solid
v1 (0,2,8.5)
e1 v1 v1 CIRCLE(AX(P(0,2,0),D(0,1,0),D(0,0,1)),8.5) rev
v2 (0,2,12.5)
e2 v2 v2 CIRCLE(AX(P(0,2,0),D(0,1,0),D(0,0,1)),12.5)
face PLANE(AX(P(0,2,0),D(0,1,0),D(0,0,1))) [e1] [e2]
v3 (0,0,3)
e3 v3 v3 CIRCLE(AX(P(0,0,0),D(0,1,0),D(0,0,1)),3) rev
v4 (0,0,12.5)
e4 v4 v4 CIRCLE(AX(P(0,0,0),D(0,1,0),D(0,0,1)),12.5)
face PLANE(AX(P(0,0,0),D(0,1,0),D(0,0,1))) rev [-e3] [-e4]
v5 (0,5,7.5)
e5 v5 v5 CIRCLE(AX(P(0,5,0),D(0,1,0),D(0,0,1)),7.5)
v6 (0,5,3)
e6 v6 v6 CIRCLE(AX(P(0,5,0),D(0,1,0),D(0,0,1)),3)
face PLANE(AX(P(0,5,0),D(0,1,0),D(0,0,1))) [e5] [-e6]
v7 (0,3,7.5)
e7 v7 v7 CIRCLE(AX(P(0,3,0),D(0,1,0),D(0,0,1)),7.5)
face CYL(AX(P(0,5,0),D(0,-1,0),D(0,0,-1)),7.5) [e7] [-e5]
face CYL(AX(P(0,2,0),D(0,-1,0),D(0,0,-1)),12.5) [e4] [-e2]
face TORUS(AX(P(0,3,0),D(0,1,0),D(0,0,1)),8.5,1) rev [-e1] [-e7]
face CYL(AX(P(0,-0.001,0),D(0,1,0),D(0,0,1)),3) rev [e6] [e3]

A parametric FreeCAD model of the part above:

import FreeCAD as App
import Part
import Sketcher
from FreeCAD import Vector
Q = App.Units.Quantity


def edges_at(feature, points):
    """Names of the edges that pass closest to the given points."""
    edges = feature.Shape.Edges
    near = lambda p: min(range(len(edges)), key=lambda i: edges[i].distToShape(Part.Vertex(*p))[0])
    return sorted({f"Edge{near(p) + 1}" for p in points})

doc = App.newDocument("Part")
body = doc.addObject("PartDesign::Body", "Body")

# Sketch on XZ plane
sketch1 = doc.addObject("Sketcher::SketchObject", "Sketch")
body.addObject(sketch1)
sketch1.AttachmentSupport = (doc.XZ_Plane, [""])
sketch1.MapMode = "FlatFace"
sketch1.addGeometry(Part.Circle(Vector(0, 0, 0), Vector(0, 0, 1), 12), False)
sketch1.addConstraint([
    Sketcher.Constraint("Coincident", 0, 3, -1, 1),
    Sketcher.Constraint("Diameter", 0, Q("25 mm")),
])
pad1 = doc.addObject("PartDesign::Pad", "Pad")
body.addObject(pad1)
pad1.Profile = sketch1
pad1.Length = 2
pad1.Reversed = True

# Sketch on XZ plane
sketch2 = doc.addObject("Sketcher::SketchObject", "Sketch001")
body.addObject(sketch2)
sketch2.AttachmentSupport = (doc.XZ_Plane, [""])
sketch2.MapMode = "FlatFace"
sketch2.AttachmentOffset = App.Placement(Vector(0, 0, -2), App.Rotation())
sketch2.addGeometry(Part.Circle(Vector(0, 0, 0), Vector(0, 0, 1), 8), False)
sketch2.addConstraint([
    Sketcher.Constraint("Coincident", 0, 3, -1, 1),
    Sketcher.Constraint("Diameter", 0, Q("15 mm")),
])
pad2 = doc.addObject("PartDesign::Pad", "Pad001")
body.addObject(pad2)
pad2.Profile = sketch2
pad2.Length = 3
pad2.Reversed = True
doc.recompute()

fillet = doc.addObject("PartDesign::Fillet", "Fillet")
body.addObject(fillet)
fillet.Base = (pad2, edges_at(pad2, [(0, 2, -7.5)]))
fillet.Radius = 1

# Sketch on XZ plane
sketch3 = doc.addObject("Sketcher::SketchObject", "Sketch002")
body.addObject(sketch3)
sketch3.AttachmentSupport = (doc.XZ_Plane, [""])
sketch3.MapMode = "FlatFace"
sketch3.AttachmentOffset = App.Placement(Vector(0, 0, -5), App.Rotation())
sketch3.addGeometry(Part.Circle(Vector(0, 0, 0), Vector(0, 0, 1), 3), False)
sketch3.addConstraint([
    Sketcher.Constraint("Coincident", 0, 3, -1, 1),
    Sketcher.Constraint("Diameter", 0, Q("6 mm")),
])
pocket1 = doc.addObject("PartDesign::Pocket", "Pocket")
body.addObject(pocket1)
pocket1.Profile = sketch3
pocket1.Type = "UpToFirst"
pocket1.Reversed = True

doc.recompute()
